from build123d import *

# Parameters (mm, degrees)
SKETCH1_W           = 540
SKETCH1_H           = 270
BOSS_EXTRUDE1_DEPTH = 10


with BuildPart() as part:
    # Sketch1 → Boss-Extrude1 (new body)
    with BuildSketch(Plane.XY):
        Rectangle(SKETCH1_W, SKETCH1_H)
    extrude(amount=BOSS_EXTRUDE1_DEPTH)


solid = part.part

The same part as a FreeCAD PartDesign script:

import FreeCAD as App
import Part
import Sketcher
from FreeCAD import Vector
Q = App.Units.Quantity

doc = App.newDocument("Part")
body = doc.addObject("PartDesign::Body", "Body")

sketch1 = doc.addObject("Sketcher::SketchObject", "Sketch")
body.addObject(sketch1)
sketch1.AttachmentSupport = (doc.XY_Plane, [""])
sketch1.MapMode = "FlatFace"
sketch1.addGeometry([
    Part.LineSegment(Vector(-270, 135, 0), Vector(-270, -135, 0)),
    Part.LineSegment(Vector(-270, -135, 0), Vector(270, -135, 0)),
    Part.LineSegment(Vector(270, -135, 0), Vector(270, 135, 0)),
    Part.LineSegment(Vector(270, 135, 0), Vector(-270, 135, 0)),
], False)
sketch1.addConstraint([
    Sketcher.Constraint("Coincident", 0, 2, 1, 1),
    Sketcher.Constraint("Coincident", 1, 2, 2, 1),
    Sketcher.Constraint("Coincident", 2, 2, 3, 1),
    Sketcher.Constraint("Coincident", 3, 2, 0, 1),
    Sketcher.Constraint("Vertical", 0),
    Sketcher.Constraint("Horizontal", 1),
    Sketcher.Constraint("Vertical", 2),
    Sketcher.Constraint("Horizontal", 3),
    Sketcher.Constraint("Symmetric", 0, 2, 2, 2, -1, 1),
    Sketcher.Constraint("DistanceX", 1, 1, 1, 2, Q("540 mm")),
    Sketcher.Constraint("DistanceY", 0, 2, 0, 1, Q("270 mm")),
])
pad1 = doc.addObject("PartDesign::Pad", "Pad")
body.addObject(pad1)
pad1.Profile = sketch1
pad1.Length = 10

doc.recompute()
